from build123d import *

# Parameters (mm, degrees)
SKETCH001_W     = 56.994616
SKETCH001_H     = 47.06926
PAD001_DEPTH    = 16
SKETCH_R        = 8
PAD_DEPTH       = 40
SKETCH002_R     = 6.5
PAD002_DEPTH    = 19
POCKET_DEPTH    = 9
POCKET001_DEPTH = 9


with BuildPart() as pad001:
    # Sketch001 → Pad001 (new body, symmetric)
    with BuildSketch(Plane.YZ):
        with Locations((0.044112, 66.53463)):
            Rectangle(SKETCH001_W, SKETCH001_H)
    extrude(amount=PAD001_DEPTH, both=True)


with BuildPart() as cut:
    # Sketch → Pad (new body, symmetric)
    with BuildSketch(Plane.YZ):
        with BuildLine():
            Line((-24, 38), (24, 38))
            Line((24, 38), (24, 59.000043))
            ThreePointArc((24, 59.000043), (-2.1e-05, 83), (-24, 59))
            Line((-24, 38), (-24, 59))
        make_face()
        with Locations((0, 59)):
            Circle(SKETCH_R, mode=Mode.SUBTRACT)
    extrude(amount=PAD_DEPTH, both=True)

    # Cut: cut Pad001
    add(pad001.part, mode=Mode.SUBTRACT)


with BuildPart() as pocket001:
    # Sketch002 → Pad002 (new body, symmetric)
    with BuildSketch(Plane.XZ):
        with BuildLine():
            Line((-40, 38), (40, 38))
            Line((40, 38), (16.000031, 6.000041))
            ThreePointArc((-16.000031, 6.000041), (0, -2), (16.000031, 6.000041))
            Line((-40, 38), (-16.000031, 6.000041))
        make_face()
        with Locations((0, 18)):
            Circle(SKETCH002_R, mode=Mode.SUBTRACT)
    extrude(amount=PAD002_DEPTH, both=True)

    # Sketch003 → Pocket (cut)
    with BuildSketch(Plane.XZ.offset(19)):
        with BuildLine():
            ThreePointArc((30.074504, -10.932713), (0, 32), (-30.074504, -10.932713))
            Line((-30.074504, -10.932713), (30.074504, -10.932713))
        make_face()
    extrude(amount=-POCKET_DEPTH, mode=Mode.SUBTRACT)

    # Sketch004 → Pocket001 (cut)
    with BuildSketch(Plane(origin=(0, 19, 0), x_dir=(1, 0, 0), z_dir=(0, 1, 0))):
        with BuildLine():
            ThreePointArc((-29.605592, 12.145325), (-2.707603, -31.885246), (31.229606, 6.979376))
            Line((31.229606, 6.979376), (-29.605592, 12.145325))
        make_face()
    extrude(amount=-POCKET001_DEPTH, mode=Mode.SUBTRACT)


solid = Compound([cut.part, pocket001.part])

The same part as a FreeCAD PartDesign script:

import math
import FreeCAD as App
import Part
import Sketcher

V = App.Vector

doc = App.newDocument("Part")
body = doc.addObject("PartDesign::Body", "Body")

# Sketch on YZ plane
sketch1 = body.newObject("Sketcher::SketchObject", "Sketch")
sketch1.AttachmentSupport = (doc.getObject("YZ_Plane"), [""])
sketch1.MapMode = "FlatFace"
sketch1.addGeometry([
    Part.LineSegment(V(-28, 90, 0), V(-28, 43, 0)),
    Part.LineSegment(V(-28, 43, 0), V(29, 43, 0)),
    Part.LineSegment(V(29, 43, 0), V(29, 90, 0)),
    Part.LineSegment(V(29, 90, 0), V(-28, 90, 0)),
], False)
sketch1.addConstraint([
    Sketcher.Constraint("Coincident", 0, 2, 1, 1),
    Sketcher.Constraint("Coincident", 1, 2, 2, 1),
    Sketcher.Constraint("Coincident", 2, 2, 3, 1),
    Sketcher.Constraint("Coincident", 3, 2, 0, 1),
    Sketcher.Constraint("Vertical", 0),
    Sketcher.Constraint("Horizontal", 1),
    Sketcher.Constraint("Vertical", 2),
    Sketcher.Constraint("Horizontal", 3),
    Sketcher.Constraint("DistanceY", -1, 1, 0, 2, 43.0),
    Sketcher.Constraint("DistanceY", 0, 2, 0, 1, 47.06926),
    Sketcher.Constraint("DistanceX", 1, 1, 1, 2, 56.994616),
    Sketcher.Constraint("DistanceX", -1, 1, 1, 2, 28.54142),
])
pad1 = body.newObject("PartDesign::Pad", "Pad")
pad1.Profile = sketch1
pad1.Length = 32
pad1.Midplane = True
body2 = doc.addObject("PartDesign::Body", "Body001")

# Sketch on YZ plane
sketch2 = body2.newObject("Sketcher::SketchObject", "Sketch001")
sketch2.AttachmentSupport = (doc.getObject("YZ_Plane001"), [""])
sketch2.MapMode = "FlatFace"
sketch2.addGeometry([
    Part.LineSegment(V(-24, 38, 0), V(24, 38, 0)),  # 0
    Part.LineSegment(V(24, 38, 0), V(24, 59.000043, 0)),  # 1
    Part.ArcOfCircle(Part.Circle(V(0, 59, 0), V(0, 0, 1), 24), math.radians(0.000103), math.radians(180)),  # 2
    Part.LineSegment(V(-24, 59, 0), V(-24, 38, 0)),  # 3
    Part.Circle(V(0, 59, 0), V(0, 0, 1), 8),  # 4
], False)
sketch2.addConstraint([
    Sketcher.Constraint("Coincident", 0, 2, 1, 1),
    Sketcher.Constraint("Coincident", 1, 2, 2, 1),
    Sketcher.Constraint("Coincident", 2, 2, 3, 1),
    Sketcher.Constraint("Coincident", 3, 2, 0, 1),
    Sketcher.Constraint("Horizontal", 0),
    Sketcher.Constraint("Vertical", 1),
    Sketcher.Constraint("Vertical", 3),
    Sketcher.Constraint("Coincident", 4, 3, 2, 3),
    Sketcher.Constraint("PointOnObject", 2, 3, -2),
    Sketcher.Constraint("Diameter", 4, 16.0),
    Sketcher.Constraint("Radius", 2, 24.0),
    Sketcher.Constraint("DistanceY", 3, 2, 3, 1, 21.0),
    Sketcher.Constraint("DistanceY", -1, 1, 2, 3, 59.0),
    Sketcher.Constraint("DistanceY", -1, 1, 0, 2, 38.0),
    Sketcher.Constraint("DistanceY", 1, 1, 1, 2, 21.000043),
])
pad2 = body2.newObject("PartDesign::Pad", "Pad001")
pad2.Profile = sketch2
pad2.Length = 80
pad2.Midplane = True
doc.recompute()

boolean = body2.newObject("PartDesign::Boolean", "Boolean")
boolean.Type = "Cut"
boolean.addObjects([body])
body3 = doc.addObject("PartDesign::Body", "Body002")

# Sketch on XZ plane
sketch3 = body3.newObject("Sketcher::SketchObject", "Sketch002")
sketch3.AttachmentSupport = (doc.getObject("XZ_Plane002"), [""])
sketch3.MapMode = "FlatFace"
sketch3.addGeometry([
    Part.LineSegment(V(40, 38, 0), V(-40, 38, 0)),  # 0
    Part.LineSegment(V(-40, 38, 0), V(-16, 6, 0)),  # 1
    Part.ArcOfCircle(Part.Circle(V(0, 18, 0), V(0, 0, 1), 20), math.radians(-143), math.radians(-37)),  # 2
    Part.LineSegment(V(16, 6, 0), V(40, 38, 0)),  # 3
    Part.Circle(V(0, 18, 0), V(0, 0, 1), 6),  # 4
], False)
sketch3.addConstraint([
    Sketcher.Constraint("Coincident", 0, 2, 1, 1),
    Sketcher.Constraint("Coincident", 1, 2, 2, 1),
    Sketcher.Constraint("Coincident", 2, 2, 3, 1),
    Sketcher.Constraint("Coincident", 3, 2, 0, 1),
    Sketcher.Constraint("Horizontal", 0),
    Sketcher.Constraint("Coincident", 4, 3, 2, 3),
    Sketcher.Constraint("Symmetric", 1, 2, 2, 2, -2),
    Sketcher.Constraint("Equal", 1, 3),
    Sketcher.Constraint("Diameter", 4, 13.0),
    Sketcher.Constraint("Radius", 2, 20.0),
    Sketcher.Constraint("DistanceX", 0, 2, 0, 1, 80.0),
    Sketcher.Constraint("DistanceY", -1, 1, 2, 3, 18.0),
    Sketcher.Constraint("DistanceY", -1, 1, 0, 2, 38.0),
    Sketcher.Constraint("Distance", 1, 39.999949),
])
pad3 = body3.newObject("PartDesign::Pad", "Pad002")
pad3.Profile = sketch3
pad3.Length = 38
pad3.Midplane = True

# Sketch on XZ plane
sketch4 = body3.newObject("Sketcher::SketchObject", "Sketch003")
sketch4.AttachmentSupport = (doc.getObject("XZ_Plane002"), [""])
sketch4.MapMode = "FlatFace"
sketch4.AttachmentOffset = App.Placement(V(0, 0, 19), App.Rotation())
sketch4.addGeometry([
    Part.ArcOfCircle(Part.Circle(V(0, 0, 0), V(0, 0, 1), 32), math.radians(-20), math.radians(200)),
    Part.LineSegment(V(-30, -11, 0), V(30, -11, 0)),
], False)
sketch4.addConstraint([
    Sketcher.Constraint("Coincident", 0, 1, 1, 2),
    Sketcher.Constraint("Coincident", 1, 1, 0, 2),
    Sketcher.Constraint("Horizontal", 1),
    Sketcher.Constraint("Coincident", 0, 3, -1, 1),
    Sketcher.Constraint("Radius", 0, 32.0),
    Sketcher.Constraint("DistanceX", 1, 1, 1, 2, 60.149008),
])
pocket1 = body3.newObject("PartDesign::Pocket", "Pocket")
pocket1.Profile = sketch4
pocket1.Length = 9

# Sketch on XZ plane
sketch5 = body3.newObject("Sketcher::SketchObject", "Sketch004")
sketch5.AttachmentSupport = (doc.getObject("XZ_Plane002"), [""])
sketch5.MapMode = "FlatFace"
sketch5.AttachmentOffset = App.Placement(V(0, 0, -19), App.Rotation())
sketch5.addGeometry([
    Part.ArcOfCircle(Part.Circle(V(0, 0, 0), V(0, 0, 1), 32), math.radians(-13), math.radians(202)),
    Part.LineSegment(V(31, -7, 0), V(-30, -12, 0)),
], False)
sketch5.addConstraint([
    Sketcher.Constraint("Coincident", 0, 1, 1, 1),
    Sketcher.Constraint("Coincident", 1, 2, 0, 2),
    Sketcher.Constraint("Coincident", 0, 3, -1, 1),
    Sketcher.Constraint("Radius", 0, 32.0),
    Sketcher.Constraint("DistanceX", 1, 2, 0, 1, 60.835198),
    Sketcher.Constraint("DistanceX", 1, 2, 0, 3, 29.605592),
])
pocket2 = body3.newObject("PartDesign::Pocket", "Pocket001")
pocket2.Profile = sketch5
pocket2.Length = 9
pocket2.Reversed = True

doc.recompute()
